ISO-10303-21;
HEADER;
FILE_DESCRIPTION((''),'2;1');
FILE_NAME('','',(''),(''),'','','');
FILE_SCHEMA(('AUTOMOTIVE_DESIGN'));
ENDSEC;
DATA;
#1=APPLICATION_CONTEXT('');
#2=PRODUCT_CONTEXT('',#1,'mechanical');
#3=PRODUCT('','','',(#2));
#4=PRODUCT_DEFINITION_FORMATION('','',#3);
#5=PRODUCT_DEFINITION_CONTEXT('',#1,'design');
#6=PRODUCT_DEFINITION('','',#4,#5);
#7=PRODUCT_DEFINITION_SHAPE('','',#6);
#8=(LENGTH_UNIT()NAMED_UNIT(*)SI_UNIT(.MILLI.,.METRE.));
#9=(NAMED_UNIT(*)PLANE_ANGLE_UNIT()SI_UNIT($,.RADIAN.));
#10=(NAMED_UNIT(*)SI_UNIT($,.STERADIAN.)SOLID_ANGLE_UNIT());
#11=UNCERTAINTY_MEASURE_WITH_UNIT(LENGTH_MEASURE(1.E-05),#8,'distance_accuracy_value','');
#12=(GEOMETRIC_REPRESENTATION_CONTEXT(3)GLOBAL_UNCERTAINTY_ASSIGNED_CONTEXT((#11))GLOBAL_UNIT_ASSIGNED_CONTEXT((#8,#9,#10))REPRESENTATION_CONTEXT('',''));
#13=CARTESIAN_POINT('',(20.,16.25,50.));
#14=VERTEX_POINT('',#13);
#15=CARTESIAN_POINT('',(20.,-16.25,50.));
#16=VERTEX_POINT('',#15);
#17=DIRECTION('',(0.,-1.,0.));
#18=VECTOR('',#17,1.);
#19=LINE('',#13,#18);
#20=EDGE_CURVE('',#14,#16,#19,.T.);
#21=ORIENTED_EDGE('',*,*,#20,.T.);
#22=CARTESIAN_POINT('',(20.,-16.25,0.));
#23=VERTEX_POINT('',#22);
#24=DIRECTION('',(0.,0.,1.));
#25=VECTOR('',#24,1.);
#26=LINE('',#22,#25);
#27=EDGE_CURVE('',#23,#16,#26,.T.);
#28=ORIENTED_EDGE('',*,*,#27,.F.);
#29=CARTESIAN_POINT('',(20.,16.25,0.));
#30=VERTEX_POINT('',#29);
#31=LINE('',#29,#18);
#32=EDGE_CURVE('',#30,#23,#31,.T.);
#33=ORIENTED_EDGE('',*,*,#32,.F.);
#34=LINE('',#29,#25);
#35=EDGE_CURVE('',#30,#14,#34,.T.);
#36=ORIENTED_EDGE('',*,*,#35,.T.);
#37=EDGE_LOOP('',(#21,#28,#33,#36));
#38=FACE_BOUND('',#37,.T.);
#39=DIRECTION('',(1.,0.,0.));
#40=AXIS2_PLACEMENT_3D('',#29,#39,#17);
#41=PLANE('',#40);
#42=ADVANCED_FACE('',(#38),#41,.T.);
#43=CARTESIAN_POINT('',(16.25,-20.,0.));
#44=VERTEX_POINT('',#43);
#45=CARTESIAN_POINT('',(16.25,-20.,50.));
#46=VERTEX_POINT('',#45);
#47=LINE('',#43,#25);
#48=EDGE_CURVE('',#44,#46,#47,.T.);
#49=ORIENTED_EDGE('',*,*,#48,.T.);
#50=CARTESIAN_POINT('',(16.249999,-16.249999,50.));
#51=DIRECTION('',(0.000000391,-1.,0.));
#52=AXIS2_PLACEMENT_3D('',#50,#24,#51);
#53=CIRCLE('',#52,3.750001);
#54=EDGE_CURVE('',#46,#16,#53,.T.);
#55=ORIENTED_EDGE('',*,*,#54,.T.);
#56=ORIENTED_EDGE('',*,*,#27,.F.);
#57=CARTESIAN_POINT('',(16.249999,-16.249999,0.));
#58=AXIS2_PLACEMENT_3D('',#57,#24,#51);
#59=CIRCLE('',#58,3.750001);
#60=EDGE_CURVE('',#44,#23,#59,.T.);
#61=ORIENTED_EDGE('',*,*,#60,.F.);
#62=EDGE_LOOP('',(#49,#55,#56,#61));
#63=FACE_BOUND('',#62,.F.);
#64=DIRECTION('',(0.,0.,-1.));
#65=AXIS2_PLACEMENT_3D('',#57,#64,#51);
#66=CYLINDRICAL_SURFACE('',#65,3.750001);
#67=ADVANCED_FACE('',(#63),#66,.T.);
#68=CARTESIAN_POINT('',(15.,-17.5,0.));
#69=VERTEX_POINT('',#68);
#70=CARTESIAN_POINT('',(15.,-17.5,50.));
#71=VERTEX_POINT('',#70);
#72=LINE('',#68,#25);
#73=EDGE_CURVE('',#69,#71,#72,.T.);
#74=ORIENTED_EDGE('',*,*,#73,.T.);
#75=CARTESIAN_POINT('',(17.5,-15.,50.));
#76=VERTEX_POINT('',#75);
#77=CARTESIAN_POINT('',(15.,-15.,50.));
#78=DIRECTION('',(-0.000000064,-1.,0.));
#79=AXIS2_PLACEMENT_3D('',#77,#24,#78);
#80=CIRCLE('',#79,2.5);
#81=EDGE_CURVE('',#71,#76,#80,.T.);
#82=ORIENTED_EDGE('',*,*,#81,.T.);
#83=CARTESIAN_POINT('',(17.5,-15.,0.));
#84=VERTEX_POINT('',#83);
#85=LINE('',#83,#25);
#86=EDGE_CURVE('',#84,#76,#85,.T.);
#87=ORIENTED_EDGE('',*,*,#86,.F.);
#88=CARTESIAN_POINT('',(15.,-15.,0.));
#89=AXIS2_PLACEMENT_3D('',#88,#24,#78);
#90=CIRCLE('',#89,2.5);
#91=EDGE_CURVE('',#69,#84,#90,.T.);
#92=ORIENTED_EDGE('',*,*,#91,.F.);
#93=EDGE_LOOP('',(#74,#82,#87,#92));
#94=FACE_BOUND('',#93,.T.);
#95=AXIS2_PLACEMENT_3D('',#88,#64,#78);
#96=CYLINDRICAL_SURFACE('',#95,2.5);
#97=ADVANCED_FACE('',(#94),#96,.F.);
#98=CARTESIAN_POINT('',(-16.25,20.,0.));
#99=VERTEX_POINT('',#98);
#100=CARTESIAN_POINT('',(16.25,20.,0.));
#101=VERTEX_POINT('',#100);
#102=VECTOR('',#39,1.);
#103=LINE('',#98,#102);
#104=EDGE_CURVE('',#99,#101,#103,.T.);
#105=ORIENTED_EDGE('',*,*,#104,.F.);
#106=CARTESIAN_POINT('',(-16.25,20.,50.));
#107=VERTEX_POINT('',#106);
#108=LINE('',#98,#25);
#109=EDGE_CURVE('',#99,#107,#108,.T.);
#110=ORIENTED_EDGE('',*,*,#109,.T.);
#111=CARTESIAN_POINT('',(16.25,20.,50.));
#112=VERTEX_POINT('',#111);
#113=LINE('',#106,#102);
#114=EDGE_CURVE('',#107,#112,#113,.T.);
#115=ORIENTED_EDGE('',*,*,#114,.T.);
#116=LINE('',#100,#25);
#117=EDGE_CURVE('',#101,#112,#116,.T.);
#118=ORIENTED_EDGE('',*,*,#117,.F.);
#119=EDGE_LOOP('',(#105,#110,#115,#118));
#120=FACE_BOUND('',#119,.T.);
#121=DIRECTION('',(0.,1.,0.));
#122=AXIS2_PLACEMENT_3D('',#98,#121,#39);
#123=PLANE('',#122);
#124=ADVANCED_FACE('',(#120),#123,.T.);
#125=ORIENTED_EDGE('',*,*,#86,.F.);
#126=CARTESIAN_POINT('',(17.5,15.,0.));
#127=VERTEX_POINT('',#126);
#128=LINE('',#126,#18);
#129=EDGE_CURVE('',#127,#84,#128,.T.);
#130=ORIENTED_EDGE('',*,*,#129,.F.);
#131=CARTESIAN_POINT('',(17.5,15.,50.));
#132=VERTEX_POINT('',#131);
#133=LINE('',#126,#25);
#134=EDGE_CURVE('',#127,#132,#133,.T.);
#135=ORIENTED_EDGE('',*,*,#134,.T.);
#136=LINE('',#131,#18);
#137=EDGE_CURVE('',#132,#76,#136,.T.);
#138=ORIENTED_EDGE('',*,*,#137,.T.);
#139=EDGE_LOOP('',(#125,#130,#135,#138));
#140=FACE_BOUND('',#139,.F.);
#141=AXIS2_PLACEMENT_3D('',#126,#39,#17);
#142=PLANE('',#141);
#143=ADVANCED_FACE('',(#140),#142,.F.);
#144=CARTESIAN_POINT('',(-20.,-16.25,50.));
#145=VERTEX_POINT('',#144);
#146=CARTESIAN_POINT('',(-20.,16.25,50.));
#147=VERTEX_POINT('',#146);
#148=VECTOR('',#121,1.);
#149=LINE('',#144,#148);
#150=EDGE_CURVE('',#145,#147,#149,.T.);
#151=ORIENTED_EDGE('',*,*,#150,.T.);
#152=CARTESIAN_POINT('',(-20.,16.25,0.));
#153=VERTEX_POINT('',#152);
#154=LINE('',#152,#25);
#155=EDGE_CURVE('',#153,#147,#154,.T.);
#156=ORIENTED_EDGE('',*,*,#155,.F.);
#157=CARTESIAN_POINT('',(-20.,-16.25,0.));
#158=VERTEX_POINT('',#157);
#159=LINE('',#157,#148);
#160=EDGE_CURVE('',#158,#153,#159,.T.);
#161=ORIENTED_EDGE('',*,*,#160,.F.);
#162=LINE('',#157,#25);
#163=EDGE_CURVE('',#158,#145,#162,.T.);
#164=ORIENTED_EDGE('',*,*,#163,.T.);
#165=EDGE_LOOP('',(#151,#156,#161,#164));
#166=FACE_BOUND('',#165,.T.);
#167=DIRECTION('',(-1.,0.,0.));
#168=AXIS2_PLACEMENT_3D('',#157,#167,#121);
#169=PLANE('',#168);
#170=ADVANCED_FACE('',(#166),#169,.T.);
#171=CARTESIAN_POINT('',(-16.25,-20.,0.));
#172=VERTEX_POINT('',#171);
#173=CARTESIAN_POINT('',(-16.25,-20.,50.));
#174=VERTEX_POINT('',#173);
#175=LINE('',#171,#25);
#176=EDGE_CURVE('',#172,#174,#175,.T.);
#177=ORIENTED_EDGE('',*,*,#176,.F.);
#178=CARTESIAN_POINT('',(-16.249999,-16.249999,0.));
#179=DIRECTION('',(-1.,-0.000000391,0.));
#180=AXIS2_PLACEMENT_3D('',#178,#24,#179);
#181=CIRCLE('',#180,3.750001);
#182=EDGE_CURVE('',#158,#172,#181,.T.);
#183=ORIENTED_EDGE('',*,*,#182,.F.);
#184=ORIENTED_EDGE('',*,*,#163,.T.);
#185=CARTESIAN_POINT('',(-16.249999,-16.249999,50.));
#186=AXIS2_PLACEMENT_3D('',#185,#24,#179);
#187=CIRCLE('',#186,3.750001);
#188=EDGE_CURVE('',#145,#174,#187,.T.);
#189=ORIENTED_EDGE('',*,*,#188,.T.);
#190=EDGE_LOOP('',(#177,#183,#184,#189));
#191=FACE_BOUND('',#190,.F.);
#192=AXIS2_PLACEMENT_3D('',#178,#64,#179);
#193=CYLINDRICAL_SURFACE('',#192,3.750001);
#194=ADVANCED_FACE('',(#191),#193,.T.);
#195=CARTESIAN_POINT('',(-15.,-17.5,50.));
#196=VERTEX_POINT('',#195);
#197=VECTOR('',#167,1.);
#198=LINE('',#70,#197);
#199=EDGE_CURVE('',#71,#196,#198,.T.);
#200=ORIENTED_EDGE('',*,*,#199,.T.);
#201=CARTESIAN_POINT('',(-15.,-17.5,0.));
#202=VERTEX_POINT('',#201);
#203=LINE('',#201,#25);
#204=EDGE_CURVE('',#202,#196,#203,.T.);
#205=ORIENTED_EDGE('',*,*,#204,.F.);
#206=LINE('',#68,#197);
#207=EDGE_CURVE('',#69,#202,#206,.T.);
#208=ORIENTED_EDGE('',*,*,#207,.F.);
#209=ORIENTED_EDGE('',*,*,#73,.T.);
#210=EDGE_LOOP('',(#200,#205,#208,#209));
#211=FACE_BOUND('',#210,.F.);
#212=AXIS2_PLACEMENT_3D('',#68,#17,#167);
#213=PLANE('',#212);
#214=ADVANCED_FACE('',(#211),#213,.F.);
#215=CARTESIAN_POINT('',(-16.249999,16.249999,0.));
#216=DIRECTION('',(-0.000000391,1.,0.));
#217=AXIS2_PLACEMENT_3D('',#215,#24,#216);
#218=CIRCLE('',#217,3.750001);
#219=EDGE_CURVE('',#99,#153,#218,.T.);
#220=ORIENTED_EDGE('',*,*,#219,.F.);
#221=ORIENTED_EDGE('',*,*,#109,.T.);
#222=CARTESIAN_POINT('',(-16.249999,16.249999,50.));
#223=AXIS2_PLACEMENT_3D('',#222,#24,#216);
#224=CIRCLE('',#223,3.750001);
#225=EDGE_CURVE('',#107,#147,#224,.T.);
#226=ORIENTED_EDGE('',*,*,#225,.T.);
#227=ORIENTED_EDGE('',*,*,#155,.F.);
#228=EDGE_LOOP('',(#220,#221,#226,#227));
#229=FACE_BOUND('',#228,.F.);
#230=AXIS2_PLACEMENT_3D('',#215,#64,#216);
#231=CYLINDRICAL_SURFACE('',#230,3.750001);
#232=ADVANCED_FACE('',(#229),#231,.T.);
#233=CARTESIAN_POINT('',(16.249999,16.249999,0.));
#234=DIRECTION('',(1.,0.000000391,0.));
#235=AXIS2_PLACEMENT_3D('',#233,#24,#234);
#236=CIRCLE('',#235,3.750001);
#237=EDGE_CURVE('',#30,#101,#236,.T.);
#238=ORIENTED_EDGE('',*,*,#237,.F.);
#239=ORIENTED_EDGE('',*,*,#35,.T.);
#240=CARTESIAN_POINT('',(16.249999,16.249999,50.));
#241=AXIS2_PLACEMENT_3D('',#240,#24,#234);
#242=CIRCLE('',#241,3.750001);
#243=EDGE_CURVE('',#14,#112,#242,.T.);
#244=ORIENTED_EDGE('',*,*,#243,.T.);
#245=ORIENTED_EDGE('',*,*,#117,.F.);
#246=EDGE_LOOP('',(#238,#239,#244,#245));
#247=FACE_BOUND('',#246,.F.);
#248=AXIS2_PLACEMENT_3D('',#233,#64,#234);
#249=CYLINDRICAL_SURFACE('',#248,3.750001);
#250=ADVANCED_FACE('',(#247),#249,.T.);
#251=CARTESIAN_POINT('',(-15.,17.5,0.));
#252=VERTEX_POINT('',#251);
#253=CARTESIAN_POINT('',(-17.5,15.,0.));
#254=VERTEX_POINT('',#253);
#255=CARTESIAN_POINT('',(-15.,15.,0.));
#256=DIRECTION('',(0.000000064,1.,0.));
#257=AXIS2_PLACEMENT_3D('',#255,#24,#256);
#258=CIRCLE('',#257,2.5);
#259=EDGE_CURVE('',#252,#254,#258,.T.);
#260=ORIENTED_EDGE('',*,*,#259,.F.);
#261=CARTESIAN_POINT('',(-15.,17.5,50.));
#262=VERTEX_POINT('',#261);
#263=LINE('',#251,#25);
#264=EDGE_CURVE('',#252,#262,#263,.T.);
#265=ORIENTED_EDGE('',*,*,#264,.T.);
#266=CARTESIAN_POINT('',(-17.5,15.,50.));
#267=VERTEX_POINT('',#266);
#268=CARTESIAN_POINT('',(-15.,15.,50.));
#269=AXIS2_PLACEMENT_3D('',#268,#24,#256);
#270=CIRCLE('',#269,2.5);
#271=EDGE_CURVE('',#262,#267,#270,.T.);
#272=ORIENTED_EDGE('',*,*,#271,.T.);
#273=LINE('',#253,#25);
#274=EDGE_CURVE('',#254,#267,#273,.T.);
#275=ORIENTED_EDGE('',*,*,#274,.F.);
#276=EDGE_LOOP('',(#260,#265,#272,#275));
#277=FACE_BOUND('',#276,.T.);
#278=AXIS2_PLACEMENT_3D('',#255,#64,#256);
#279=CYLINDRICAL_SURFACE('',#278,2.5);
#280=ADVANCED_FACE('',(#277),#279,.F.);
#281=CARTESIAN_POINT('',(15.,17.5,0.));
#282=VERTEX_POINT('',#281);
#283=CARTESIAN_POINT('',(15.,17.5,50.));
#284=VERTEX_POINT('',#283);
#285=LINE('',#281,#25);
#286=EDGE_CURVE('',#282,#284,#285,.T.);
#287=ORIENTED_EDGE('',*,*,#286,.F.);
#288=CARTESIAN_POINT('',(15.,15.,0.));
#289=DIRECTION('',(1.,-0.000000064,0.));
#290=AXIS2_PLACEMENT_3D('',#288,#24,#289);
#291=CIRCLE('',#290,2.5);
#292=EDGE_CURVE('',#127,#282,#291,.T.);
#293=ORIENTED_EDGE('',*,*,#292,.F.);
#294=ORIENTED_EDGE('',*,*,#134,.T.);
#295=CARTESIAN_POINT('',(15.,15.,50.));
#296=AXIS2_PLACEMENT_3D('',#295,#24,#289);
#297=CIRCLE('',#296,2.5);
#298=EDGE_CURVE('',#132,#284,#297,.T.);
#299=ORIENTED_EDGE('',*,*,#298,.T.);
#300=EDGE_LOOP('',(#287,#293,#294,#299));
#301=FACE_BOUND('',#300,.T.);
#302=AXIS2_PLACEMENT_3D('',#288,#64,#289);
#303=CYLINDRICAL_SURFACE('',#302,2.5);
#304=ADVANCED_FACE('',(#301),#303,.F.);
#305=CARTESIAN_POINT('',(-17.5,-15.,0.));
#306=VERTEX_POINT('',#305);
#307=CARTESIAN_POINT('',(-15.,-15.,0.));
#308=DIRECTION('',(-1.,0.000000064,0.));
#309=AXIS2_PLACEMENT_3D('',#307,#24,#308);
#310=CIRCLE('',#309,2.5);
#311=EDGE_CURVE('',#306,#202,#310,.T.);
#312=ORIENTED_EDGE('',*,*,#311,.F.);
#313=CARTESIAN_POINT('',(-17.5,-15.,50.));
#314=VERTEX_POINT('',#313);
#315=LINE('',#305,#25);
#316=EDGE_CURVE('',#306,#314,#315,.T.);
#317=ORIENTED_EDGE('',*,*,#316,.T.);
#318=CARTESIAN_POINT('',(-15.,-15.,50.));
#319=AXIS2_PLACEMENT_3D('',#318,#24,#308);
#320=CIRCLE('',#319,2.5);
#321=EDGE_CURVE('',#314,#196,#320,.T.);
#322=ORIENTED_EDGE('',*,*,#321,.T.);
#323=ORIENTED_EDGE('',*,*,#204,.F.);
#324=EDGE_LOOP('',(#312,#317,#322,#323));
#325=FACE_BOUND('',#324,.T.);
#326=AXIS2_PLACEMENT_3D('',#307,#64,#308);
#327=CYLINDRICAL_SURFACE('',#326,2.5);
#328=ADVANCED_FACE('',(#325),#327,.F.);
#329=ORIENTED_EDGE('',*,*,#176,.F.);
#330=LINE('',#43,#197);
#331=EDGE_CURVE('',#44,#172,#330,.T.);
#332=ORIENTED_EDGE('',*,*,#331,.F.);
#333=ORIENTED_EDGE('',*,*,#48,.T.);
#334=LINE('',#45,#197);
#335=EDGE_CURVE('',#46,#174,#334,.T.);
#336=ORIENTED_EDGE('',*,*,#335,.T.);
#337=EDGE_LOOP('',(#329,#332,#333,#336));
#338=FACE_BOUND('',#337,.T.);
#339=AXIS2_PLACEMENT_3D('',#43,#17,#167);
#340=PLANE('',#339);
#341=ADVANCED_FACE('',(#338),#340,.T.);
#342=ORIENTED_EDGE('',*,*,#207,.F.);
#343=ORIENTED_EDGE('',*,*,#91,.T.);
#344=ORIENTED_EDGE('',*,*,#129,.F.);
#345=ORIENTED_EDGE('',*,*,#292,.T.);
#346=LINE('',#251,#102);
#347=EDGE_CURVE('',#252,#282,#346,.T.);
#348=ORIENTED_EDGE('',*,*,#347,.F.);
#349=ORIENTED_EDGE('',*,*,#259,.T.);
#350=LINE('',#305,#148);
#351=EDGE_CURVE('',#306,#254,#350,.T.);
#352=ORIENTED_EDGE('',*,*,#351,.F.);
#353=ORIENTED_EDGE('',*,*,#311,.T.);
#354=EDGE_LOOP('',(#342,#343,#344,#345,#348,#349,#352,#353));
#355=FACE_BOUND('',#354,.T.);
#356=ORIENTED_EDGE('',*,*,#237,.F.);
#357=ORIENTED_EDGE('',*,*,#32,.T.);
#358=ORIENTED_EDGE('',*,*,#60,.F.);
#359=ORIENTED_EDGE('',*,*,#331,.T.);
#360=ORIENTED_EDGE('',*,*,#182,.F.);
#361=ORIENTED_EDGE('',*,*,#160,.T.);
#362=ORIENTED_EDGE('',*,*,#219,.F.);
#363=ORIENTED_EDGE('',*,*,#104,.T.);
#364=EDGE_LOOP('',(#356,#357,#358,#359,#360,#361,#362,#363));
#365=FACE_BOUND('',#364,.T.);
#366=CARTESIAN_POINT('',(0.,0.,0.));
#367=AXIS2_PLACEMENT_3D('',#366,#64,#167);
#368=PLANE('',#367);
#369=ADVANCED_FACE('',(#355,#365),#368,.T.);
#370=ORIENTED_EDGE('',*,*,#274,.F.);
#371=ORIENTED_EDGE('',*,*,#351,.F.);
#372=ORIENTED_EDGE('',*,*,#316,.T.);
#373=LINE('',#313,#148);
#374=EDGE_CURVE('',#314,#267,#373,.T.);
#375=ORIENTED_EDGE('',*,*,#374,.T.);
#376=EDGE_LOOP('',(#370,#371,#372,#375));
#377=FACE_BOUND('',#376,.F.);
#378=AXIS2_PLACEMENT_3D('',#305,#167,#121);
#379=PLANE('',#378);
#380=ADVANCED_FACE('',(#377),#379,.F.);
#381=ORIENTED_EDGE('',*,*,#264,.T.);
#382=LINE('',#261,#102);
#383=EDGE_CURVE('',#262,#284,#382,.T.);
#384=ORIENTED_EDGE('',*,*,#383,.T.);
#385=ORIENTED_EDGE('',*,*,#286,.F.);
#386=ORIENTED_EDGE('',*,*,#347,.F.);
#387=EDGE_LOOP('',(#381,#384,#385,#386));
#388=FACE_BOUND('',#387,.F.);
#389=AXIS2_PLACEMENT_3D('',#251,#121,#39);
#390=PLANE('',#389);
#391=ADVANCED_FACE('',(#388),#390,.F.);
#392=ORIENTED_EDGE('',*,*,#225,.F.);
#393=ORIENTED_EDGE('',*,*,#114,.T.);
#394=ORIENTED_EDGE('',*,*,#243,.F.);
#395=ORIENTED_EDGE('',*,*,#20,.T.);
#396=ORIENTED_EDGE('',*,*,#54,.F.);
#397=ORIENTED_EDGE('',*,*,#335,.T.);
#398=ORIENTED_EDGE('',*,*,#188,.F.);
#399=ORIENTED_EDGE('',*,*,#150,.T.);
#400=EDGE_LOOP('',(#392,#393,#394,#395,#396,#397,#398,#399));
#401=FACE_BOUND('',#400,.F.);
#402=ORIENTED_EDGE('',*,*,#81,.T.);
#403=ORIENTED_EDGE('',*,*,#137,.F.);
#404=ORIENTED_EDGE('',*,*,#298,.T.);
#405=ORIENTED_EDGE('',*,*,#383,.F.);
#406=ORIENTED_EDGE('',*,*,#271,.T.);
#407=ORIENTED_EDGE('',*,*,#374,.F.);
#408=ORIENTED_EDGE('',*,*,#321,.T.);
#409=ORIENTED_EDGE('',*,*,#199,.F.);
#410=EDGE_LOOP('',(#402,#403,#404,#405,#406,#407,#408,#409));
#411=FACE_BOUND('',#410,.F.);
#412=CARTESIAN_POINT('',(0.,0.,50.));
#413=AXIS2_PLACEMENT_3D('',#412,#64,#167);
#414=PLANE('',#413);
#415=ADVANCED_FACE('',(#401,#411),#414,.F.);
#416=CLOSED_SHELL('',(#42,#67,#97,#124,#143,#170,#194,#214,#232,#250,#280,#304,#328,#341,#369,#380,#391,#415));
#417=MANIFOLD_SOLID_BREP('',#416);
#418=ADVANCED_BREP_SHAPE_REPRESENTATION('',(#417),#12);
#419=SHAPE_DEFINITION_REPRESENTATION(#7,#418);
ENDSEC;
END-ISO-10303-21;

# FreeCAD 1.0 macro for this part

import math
import FreeCAD as App
import Part
import Sketcher

doc = App.newDocument("Part")
body = doc.addObject("PartDesign::Body", "Body")

# Sketch on XY plane
sketch1 = body.newObject("Sketcher::SketchObject", "Sketch")
sketch1.AttachmentSupport = (doc.getObject("XY_Plane"), [""])
sketch1.MapMode = "FlatFace"
sketch1.addGeometry(Part.LineSegment(App.Vector(16.2, 20, 0), App.Vector(-16.2, 20, 0)), False)
sketch1.addGeometry(Part.ArcOfCircle(Part.Circle(App.Vector(-16.2, 16.2, 0), App.Vector(0, 0, 1), 3.8), math.radians(90), math.radians(180)), False)
sketch1.addGeometry(Part.LineSegment(App.Vector(-20, 16.2, 0), App.Vector(-20, -16.2, 0)), False)
sketch1.addGeometry(Part.ArcOfCircle(Part.Circle(App.Vector(-16.2, -16.2, 0), App.Vector(0, 0, 1), 3.8), math.radians(-180), math.radians(-90)), False)
sketch1.addGeometry(Part.LineSegment(App.Vector(-16.2, -20, 0), App.Vector(16.2, -20, 0)), False)
sketch1.addGeometry(Part.ArcOfCircle(Part.Circle(App.Vector(16.2, -16.2, 0), App.Vector(0, 0, 1), 3.8), math.radians(-90), math.radians(0)), False)
sketch1.addGeometry(Part.LineSegment(App.Vector(20, -16.2, 0), App.Vector(20, 16.2, 0)), False)
sketch1.addGeometry(Part.ArcOfCircle(Part.Circle(App.Vector(16.2, 16.2, 0), App.Vector(0, 0, 1), 3.8), math.radians(0), math.radians(90)), False)
sketch1.addGeometry(Part.LineSegment(App.Vector(-15, 17.5, 0), App.Vector(15, 17.5, 0)), False)
sketch1.addGeometry(Part.ArcOfCircle(Part.Circle(App.Vector(15, 15, 0), App.Vector(0, 0, 1), 2.5), math.radians(0), math.radians(90)), False)
sketch1.addGeometry(Part.LineSegment(App.Vector(17.5, 15, 0), App.Vector(17.5, -15, 0)), False)
sketch1.addGeometry(Part.ArcOfCircle(Part.Circle(App.Vector(15, -15, 0), App.Vector(0, 0, 1), 2.5), math.radians(-90), math.radians(0)), False)
sketch1.addGeometry(Part.LineSegment(App.Vector(15, -17.5, 0), App.Vector(-15, -17.5, 0)), False)
sketch1.addGeometry(Part.ArcOfCircle(Part.Circle(App.Vector(-15, -15, 0), App.Vector(0, 0, 1), 2.5), math.radians(180), math.radians(270)), False)
sketch1.addGeometry(Part.LineSegment(App.Vector(-17.5, -15, 0), App.Vector(-17.5, 15, 0)), False)
sketch1.addGeometry(Part.ArcOfCircle(Part.Circle(App.Vector(-15, 15, 0), App.Vector(0, 0, 1), 2.5), math.radians(90), math.radians(180)), False)
sketch1.addConstraint(Sketcher.Constraint("Tangent", 0, 2, 1, 1))
sketch1.addConstraint(Sketcher.Constraint("Tangent", 1, 2, 2, 1))
sketch1.addConstraint(Sketcher.Constraint("Tangent", 2, 2, 3, 1))
sketch1.addConstraint(Sketcher.Constraint("Tangent", 3, 2, 4, 1))
sketch1.addConstraint(Sketcher.Constraint("Tangent", 4, 2, 5, 1))
sketch1.addConstraint(Sketcher.Constraint("Tangent", 5, 2, 6, 1))
sketch1.addConstraint(Sketcher.Constraint("Tangent", 6, 2, 7, 1))
sketch1.addConstraint(Sketcher.Constraint("Tangent", 7, 2, 0, 1))
sketch1.addConstraint(Sketcher.Constraint("Tangent", 8, 2, 9, 2))
sketch1.addConstraint(Sketcher.Constraint("Tangent", 9, 1, 10, 1))
sketch1.addConstraint(Sketcher.Constraint("Tangent", 10, 2, 11, 2))
sketch1.addConstraint(Sketcher.Constraint("Tangent", 11, 1, 12, 1))
sketch1.addConstraint(Sketcher.Constraint("Tangent", 12, 2, 13, 2))
sketch1.addConstraint(Sketcher.Constraint("Tangent", 13, 1, 14, 1))
sketch1.addConstraint(Sketcher.Constraint("Tangent", 14, 2, 15, 2))
sketch1.addConstraint(Sketcher.Constraint("Tangent", 15, 1, 8, 1))
sketch1.addConstraint(Sketcher.Constraint("Horizontal", 0))
sketch1.addConstraint(Sketcher.Constraint("Vertical", 2))
sketch1.addConstraint(Sketcher.Constraint("Horizontal", 4))
sketch1.addConstraint(Sketcher.Constraint("Vertical", 6))
sketch1.addConstraint(Sketcher.Constraint("Horizontal", 8))
sketch1.addConstraint(Sketcher.Constraint("Vertical", 10))
sketch1.addConstraint(Sketcher.Constraint("Horizontal", 12))
sketch1.addConstraint(Sketcher.Constraint("Vertical", 14))
sketch1.addConstraint(Sketcher.Constraint("Equal", 1, 3))
sketch1.addConstraint(Sketcher.Constraint("Equal", 3, 5))
sketch1.addConstraint(Sketcher.Constraint("Equal", 5, 7))
sketch1.addConstraint(Sketcher.Constraint("Equal", 9, 11))
sketch1.addConstraint(Sketcher.Constraint("Equal", 11, 13))
sketch1.addConstraint(Sketcher.Constraint("Equal", 13, 15))
sketch1.addConstraint(Sketcher.Constraint("Symmetric", 1, 3, 5, 3, -1, 1))
sketch1.addConstraint(Sketcher.Constraint("Symmetric", 9, 3, 13, 3, -1, 1))
sketch1.addConstraint(Sketcher.Constraint("Equal", 4, 2))
sketch1.addConstraint(Sketcher.Constraint("Equal", 12, 10))
sketch1.addConstraint(Sketcher.Constraint("Radius", 9, 2.5))
sketch1.addConstraint(Sketcher.Constraint("DistanceX", 8, 1, 8, 2, 30.0))
sketch1.addConstraint(Sketcher.Constraint("Radius", 1, 3.750001))
sketch1.addConstraint(Sketcher.Constraint("DistanceX", 0, 2, 0, 1, 32.5))
pad1 = body.newObject("PartDesign::Pad", "Pad")
pad1.Profile = sketch1
pad1.Length = 50

doc.recompute()
